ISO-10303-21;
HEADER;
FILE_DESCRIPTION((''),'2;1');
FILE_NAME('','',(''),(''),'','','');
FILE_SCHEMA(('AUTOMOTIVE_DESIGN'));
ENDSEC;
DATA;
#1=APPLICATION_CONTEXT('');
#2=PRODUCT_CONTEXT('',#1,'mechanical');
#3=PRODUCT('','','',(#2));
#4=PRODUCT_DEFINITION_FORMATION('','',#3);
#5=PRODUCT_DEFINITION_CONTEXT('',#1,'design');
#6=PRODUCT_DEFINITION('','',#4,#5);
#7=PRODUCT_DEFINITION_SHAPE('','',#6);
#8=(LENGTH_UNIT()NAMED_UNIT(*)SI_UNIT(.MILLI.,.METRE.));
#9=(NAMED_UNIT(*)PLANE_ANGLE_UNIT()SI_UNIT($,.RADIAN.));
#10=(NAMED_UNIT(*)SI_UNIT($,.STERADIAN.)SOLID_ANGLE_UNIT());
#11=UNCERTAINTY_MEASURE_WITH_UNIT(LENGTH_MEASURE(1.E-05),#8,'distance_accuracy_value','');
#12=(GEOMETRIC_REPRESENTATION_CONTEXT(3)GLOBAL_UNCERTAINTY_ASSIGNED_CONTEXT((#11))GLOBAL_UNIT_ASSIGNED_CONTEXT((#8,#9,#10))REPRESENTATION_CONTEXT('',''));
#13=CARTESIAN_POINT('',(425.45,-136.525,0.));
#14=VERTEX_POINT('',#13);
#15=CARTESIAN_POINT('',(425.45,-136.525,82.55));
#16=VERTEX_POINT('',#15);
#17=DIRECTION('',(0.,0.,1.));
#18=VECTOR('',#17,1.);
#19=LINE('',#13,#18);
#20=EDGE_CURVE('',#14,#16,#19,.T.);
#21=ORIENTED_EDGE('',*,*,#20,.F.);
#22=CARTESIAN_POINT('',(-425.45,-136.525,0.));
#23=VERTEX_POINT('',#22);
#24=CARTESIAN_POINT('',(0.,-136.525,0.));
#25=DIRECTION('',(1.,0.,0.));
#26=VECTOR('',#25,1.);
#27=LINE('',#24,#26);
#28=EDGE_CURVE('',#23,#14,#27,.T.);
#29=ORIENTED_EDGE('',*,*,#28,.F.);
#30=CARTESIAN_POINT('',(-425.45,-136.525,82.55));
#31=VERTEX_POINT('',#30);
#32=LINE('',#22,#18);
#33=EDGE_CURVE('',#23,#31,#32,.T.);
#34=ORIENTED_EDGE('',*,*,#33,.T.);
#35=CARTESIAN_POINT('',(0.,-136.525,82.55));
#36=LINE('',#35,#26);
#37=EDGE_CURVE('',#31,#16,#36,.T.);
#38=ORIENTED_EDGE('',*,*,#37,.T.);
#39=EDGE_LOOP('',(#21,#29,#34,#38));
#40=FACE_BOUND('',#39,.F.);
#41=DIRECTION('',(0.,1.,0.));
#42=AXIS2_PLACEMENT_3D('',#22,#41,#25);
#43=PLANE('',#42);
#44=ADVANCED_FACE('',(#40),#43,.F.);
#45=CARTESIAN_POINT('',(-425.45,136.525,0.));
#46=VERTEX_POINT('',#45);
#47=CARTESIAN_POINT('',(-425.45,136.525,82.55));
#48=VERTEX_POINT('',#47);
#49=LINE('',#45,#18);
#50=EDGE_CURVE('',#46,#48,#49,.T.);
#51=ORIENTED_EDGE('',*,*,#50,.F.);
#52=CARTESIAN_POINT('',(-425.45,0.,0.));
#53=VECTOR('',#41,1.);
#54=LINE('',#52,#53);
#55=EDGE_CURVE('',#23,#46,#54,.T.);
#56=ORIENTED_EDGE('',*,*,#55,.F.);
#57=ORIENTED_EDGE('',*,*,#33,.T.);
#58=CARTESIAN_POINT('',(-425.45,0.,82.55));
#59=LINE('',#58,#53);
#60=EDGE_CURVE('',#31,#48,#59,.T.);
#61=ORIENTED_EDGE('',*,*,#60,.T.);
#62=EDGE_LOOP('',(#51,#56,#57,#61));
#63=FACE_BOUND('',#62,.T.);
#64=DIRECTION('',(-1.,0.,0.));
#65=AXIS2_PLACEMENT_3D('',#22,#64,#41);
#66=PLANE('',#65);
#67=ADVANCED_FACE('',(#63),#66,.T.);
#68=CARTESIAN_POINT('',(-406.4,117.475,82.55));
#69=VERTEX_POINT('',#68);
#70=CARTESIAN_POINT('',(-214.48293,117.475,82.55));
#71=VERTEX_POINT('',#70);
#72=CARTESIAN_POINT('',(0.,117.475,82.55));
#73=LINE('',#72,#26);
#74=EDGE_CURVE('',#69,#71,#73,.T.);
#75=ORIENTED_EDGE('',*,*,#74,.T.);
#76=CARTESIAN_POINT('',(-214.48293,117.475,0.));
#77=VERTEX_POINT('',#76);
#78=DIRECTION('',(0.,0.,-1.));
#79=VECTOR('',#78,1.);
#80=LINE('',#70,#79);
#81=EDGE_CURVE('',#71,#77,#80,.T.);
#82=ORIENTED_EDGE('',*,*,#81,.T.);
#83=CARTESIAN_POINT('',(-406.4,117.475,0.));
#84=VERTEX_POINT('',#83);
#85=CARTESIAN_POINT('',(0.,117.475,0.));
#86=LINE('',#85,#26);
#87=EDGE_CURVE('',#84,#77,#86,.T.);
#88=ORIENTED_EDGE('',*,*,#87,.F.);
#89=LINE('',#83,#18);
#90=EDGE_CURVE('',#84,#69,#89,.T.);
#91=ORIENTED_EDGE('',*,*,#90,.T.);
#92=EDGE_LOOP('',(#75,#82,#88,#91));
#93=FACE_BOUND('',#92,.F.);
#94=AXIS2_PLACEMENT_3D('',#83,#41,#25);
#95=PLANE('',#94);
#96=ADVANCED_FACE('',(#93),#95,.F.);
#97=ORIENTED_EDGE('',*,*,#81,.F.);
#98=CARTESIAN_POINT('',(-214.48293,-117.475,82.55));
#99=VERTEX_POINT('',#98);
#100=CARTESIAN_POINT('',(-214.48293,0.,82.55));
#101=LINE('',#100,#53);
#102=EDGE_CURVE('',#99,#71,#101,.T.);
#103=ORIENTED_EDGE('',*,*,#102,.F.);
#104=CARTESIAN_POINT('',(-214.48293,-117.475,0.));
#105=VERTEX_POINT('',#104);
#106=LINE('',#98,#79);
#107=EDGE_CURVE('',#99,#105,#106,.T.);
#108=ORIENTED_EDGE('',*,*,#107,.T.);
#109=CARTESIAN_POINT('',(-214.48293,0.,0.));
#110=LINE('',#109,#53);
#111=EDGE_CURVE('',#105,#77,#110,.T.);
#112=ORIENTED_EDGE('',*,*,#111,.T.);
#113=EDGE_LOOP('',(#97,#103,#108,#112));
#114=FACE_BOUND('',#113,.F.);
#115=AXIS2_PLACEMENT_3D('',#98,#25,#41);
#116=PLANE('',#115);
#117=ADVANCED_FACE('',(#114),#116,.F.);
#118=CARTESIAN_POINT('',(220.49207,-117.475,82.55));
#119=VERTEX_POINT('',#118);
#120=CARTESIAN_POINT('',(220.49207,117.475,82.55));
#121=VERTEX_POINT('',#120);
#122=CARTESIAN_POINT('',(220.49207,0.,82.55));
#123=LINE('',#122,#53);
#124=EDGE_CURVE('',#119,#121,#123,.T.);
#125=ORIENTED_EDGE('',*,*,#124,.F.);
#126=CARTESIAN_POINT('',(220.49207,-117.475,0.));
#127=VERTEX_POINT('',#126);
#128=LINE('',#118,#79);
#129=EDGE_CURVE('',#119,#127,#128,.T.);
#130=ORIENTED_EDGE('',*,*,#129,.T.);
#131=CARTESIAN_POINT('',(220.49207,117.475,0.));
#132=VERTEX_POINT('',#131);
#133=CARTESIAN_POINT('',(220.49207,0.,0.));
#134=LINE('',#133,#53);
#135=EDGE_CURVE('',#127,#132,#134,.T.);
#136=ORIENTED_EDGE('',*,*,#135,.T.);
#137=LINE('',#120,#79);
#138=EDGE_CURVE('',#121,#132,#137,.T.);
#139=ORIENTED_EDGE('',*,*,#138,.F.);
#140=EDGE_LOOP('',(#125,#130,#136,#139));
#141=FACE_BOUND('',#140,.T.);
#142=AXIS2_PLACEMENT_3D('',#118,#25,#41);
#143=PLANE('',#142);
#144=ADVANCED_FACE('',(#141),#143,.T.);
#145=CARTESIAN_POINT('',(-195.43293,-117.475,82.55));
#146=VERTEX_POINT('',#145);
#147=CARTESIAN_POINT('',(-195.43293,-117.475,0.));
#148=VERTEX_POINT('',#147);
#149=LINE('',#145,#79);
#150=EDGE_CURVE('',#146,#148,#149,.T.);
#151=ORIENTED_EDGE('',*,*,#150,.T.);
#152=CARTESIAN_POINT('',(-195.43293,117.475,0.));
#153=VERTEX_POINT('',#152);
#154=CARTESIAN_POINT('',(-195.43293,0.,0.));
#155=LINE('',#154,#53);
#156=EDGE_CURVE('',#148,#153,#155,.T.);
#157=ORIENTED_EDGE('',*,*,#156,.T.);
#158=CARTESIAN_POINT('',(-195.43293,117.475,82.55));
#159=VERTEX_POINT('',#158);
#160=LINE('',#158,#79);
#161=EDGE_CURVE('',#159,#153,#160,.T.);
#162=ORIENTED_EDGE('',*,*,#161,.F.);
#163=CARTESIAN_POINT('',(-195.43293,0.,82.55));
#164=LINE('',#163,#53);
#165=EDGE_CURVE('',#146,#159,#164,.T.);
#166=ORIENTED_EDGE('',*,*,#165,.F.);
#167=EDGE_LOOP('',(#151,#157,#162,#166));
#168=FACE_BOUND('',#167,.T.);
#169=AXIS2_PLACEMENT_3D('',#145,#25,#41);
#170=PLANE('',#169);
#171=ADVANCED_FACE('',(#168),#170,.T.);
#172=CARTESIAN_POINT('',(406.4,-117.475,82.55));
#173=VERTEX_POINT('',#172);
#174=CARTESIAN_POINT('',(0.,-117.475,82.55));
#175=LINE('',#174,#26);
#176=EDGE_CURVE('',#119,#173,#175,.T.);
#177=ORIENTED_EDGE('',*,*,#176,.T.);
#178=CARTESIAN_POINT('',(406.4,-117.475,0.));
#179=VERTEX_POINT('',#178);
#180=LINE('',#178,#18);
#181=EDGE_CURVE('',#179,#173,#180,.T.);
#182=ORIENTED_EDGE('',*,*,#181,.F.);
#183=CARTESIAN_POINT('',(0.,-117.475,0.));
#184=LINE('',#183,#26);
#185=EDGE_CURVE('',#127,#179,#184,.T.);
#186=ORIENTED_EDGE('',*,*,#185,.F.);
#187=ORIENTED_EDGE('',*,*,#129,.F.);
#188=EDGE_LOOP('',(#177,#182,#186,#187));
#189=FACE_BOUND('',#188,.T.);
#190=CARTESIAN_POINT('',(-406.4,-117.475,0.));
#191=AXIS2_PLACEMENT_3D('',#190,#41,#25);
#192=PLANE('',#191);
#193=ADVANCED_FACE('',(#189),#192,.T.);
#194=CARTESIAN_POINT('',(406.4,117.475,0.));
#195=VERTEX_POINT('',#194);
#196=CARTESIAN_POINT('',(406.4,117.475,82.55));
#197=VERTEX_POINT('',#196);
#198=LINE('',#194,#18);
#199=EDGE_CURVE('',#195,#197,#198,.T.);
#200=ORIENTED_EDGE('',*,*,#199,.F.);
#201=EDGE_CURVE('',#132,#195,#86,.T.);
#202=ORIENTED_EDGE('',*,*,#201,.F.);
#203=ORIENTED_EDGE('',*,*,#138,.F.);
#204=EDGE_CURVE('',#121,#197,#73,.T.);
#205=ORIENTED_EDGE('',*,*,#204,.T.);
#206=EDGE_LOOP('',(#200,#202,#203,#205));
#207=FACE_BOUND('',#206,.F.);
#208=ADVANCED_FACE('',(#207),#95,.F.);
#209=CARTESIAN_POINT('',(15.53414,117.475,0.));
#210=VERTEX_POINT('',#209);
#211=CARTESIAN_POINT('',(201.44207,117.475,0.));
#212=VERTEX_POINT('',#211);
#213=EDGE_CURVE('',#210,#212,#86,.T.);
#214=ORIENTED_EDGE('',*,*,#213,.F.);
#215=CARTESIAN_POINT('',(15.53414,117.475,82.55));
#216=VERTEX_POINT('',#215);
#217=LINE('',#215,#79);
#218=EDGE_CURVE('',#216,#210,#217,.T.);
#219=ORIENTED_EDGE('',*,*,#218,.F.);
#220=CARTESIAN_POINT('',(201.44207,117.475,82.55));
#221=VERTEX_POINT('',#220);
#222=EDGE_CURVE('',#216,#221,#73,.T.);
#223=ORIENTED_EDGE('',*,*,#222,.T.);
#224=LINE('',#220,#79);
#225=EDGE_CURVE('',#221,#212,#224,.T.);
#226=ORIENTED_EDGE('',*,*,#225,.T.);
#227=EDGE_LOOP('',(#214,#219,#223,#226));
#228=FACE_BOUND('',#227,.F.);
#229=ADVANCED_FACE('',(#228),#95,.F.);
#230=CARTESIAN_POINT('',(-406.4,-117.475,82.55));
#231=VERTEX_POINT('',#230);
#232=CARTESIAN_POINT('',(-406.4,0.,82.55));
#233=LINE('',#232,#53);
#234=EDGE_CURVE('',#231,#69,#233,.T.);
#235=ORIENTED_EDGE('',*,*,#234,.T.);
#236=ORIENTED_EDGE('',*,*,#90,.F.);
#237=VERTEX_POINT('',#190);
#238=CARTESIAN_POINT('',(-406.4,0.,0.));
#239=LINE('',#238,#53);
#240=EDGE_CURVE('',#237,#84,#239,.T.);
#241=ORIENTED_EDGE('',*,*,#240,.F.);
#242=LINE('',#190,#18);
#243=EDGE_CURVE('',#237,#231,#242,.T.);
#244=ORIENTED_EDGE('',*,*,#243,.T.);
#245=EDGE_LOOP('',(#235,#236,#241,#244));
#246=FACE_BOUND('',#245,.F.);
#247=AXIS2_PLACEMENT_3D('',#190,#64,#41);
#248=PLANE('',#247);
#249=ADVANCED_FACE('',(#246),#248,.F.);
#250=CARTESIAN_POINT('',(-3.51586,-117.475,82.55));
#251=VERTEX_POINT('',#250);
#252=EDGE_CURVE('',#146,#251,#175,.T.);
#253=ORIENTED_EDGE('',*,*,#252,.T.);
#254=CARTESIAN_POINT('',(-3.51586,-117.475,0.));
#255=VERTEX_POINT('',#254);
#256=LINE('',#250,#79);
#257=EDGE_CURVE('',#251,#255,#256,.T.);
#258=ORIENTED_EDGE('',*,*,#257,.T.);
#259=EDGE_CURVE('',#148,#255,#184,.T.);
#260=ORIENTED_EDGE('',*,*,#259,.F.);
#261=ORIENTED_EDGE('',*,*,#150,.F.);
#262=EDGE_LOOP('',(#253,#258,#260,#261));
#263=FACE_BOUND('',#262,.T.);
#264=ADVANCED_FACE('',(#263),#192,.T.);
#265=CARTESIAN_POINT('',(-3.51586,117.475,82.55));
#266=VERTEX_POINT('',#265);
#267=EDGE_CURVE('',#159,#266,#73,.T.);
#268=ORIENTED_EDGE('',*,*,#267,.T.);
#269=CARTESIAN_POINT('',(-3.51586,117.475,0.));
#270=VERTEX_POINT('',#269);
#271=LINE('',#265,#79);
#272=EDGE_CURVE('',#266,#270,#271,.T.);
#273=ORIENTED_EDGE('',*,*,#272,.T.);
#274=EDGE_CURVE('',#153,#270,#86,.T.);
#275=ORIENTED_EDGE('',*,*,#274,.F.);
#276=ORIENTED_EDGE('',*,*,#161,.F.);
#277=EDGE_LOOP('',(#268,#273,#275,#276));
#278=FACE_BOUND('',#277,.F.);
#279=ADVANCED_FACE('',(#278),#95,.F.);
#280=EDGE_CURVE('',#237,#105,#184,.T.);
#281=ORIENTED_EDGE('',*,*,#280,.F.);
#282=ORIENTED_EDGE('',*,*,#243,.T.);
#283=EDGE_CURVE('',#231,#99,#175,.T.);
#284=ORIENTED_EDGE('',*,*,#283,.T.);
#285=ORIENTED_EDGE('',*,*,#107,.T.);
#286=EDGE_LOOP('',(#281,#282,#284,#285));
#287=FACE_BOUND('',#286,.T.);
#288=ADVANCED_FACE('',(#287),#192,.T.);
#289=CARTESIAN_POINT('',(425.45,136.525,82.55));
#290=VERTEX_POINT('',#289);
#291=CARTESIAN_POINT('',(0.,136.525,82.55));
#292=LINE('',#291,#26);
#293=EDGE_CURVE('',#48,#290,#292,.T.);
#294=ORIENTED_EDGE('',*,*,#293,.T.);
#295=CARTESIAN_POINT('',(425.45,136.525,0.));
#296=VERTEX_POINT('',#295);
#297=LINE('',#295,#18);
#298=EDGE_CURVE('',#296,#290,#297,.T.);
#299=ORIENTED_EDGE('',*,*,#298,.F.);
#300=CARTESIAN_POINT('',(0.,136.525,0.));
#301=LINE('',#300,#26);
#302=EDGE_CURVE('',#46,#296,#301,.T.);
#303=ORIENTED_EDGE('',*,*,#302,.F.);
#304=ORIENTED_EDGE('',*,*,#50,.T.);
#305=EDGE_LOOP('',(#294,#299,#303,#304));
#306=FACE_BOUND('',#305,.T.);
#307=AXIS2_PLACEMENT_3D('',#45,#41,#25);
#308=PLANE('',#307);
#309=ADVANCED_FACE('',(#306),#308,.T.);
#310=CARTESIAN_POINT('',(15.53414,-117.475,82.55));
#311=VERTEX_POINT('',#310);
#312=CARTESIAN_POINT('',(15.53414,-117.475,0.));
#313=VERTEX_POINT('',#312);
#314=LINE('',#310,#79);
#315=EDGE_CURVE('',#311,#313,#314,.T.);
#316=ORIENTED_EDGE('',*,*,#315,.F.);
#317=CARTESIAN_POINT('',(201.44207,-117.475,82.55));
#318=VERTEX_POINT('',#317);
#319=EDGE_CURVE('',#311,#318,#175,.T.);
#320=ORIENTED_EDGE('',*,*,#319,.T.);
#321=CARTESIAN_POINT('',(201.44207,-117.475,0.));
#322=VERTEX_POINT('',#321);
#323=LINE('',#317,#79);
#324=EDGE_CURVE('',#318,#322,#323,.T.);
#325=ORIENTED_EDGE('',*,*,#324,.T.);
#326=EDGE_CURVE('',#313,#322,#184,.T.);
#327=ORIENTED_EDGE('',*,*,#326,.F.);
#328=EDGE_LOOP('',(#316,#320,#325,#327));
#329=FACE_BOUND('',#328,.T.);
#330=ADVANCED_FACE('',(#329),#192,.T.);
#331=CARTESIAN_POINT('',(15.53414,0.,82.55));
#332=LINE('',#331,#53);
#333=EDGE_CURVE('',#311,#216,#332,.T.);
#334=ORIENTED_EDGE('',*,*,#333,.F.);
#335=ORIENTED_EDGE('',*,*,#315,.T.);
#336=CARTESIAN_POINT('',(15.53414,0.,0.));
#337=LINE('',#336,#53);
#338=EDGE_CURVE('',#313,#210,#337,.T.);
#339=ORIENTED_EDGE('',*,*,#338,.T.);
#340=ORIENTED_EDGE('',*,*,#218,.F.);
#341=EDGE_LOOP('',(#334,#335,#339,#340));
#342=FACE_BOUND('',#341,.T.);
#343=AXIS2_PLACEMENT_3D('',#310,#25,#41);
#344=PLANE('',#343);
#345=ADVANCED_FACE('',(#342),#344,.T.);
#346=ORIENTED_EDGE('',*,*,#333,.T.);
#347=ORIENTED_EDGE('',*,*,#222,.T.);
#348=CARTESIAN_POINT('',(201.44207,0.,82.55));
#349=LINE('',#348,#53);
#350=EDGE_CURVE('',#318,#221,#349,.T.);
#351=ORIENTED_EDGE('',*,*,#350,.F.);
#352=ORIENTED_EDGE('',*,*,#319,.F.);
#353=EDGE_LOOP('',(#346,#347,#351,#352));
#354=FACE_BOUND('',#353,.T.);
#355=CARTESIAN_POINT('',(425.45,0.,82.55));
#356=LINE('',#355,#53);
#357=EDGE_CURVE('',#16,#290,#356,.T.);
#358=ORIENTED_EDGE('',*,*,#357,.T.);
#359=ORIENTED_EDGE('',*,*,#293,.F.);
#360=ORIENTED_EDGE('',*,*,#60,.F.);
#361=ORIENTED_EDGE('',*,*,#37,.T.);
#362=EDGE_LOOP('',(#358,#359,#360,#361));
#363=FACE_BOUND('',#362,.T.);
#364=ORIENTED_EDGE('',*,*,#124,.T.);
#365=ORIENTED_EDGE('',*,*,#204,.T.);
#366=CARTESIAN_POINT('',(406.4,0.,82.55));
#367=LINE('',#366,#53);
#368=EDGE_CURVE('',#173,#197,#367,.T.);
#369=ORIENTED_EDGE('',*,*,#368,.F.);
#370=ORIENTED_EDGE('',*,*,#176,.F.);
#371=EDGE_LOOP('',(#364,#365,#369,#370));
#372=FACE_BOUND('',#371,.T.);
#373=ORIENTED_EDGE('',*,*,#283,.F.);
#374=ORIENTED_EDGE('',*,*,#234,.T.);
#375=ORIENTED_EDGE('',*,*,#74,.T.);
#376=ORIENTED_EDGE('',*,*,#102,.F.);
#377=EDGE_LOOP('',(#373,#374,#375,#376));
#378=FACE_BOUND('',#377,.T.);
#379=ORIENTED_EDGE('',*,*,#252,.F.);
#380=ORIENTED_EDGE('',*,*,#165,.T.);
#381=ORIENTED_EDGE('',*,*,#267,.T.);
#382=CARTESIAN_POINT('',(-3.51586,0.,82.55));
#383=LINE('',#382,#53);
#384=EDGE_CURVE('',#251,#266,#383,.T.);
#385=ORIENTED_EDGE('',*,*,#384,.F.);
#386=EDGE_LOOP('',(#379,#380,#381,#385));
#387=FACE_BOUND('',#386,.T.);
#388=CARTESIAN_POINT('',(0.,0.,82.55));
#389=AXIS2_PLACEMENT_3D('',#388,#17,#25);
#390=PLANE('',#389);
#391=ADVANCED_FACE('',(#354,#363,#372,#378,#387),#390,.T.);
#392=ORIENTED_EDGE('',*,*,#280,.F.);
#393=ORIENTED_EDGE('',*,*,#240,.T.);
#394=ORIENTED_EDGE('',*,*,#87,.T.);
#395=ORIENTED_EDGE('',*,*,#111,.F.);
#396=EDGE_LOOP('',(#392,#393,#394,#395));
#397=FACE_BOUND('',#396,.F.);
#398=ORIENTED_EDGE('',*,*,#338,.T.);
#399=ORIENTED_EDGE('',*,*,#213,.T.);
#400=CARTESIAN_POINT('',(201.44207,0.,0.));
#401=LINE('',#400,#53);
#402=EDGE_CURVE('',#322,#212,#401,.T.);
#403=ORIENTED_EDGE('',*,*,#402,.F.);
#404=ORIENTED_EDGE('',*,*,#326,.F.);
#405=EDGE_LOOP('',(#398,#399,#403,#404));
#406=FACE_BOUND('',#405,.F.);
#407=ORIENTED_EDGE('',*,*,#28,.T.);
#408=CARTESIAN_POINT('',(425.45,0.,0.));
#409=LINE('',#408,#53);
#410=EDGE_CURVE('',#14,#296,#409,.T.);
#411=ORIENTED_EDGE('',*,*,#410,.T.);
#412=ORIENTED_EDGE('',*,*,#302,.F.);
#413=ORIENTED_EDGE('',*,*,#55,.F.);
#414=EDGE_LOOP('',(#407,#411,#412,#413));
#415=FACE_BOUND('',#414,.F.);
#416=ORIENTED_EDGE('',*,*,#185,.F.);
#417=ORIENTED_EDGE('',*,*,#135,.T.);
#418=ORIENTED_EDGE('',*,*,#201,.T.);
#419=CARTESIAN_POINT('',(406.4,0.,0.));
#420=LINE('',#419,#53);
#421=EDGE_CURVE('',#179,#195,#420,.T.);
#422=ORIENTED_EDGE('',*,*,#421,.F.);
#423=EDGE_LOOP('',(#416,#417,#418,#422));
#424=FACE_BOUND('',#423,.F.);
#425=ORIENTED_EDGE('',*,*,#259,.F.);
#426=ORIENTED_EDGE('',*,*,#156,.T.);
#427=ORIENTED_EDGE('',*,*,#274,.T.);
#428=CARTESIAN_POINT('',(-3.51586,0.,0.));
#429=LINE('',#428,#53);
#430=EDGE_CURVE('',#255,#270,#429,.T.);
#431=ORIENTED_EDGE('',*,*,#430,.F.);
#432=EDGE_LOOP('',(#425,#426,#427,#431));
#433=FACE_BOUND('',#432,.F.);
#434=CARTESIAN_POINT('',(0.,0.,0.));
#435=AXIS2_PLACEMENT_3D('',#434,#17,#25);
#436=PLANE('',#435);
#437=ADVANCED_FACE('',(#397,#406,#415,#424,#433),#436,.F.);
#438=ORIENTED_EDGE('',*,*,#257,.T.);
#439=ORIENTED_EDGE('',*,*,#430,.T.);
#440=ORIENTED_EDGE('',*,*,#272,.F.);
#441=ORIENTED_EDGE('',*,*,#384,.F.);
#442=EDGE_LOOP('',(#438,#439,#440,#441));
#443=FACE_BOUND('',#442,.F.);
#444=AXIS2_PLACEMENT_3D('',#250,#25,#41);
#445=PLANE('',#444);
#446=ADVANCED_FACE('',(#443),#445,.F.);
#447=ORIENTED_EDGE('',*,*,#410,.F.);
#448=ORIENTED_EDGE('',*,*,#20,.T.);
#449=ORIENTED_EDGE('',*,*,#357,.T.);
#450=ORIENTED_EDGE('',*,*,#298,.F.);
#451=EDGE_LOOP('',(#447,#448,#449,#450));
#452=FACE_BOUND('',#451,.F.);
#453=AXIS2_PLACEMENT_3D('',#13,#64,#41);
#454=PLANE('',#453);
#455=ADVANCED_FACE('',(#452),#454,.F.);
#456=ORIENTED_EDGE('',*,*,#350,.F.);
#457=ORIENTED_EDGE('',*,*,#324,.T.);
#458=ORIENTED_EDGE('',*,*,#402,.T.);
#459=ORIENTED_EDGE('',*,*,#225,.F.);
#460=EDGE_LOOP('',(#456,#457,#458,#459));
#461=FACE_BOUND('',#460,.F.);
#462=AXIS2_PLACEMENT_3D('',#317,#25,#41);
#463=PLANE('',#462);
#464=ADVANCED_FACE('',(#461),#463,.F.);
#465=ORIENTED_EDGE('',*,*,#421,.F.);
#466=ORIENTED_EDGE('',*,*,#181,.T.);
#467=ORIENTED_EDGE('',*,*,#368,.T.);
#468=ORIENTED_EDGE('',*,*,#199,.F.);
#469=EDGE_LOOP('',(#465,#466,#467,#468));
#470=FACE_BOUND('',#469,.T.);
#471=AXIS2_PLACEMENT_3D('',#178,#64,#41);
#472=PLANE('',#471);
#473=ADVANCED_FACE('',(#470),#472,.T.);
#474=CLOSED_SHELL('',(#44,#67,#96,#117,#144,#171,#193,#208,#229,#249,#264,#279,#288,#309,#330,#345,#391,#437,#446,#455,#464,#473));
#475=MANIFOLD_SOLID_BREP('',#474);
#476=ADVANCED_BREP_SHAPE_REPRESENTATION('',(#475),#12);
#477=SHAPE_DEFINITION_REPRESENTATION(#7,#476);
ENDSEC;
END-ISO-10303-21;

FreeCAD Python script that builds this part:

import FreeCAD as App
import Part
import Sketcher

V = App.Vector
Q = App.Units.Quantity


def add_polygon(sketch, points):
    """Adds a closed chain of lines whose ends are joined by coincident constraints."""
    first, n = sketch.GeometryCount, len(points)
    for a, b in zip(points, points[1:] + points[:1]):
        sketch.addGeometry(Part.LineSegment(App.Vector(*a, 0), App.Vector(*b, 0)), False)
    for i in range(n):
        sketch.addConstraint(Sketcher.Constraint("Coincident", first + i, 2, first + (i + 1) % n, 1))

doc = App.newDocument("Part")
body = doc.addObject("PartDesign::Body", "Body")

# Sketch on XY plane
sketch1 = doc.addObject("Sketcher::SketchObject", "Sketch")
body.addObject(sketch1)
sketch1.AttachmentSupport = (doc.XY_Plane, [""])
sketch1.MapMode = "FlatFace"
add_polygon(sketch1, [(-425, 137), (-425, -137), (425, -137), (425, 137)])  # lines 0-3
add_polygon(sketch1, [(406, -117), (-406, -117), (-406, 117), (406, 117)])  # lines 4-7
sketch1.addConstraint([
    Sketcher.Constraint("Vertical", 0),
    Sketcher.Constraint("Horizontal", 1),
    Sketcher.Constraint("Vertical", 2),
    Sketcher.Constraint("Horizontal", 3),
    Sketcher.Constraint("Horizontal", 4),
    Sketcher.Constraint("Vertical", 5),
    Sketcher.Constraint("Horizontal", 6),
    Sketcher.Constraint("Vertical", 7),
    Sketcher.Constraint("Symmetric", 0, 2, 2, 2, -1, 1),
    Sketcher.Constraint("Symmetric", 4, 2, 6, 2, -1, 1),
    Sketcher.Constraint("DistanceX", 4, 2, 4, 1, Q("32 in")),
    Sketcher.Constraint("DistanceX", 1, 1, 1, 2, Q("33.5 in")),
    Sketcher.Constraint("DistanceY", 4, 2, 3, 2, Q("10 in")),
    Sketcher.Constraint("DistanceY", 0, 2, 0, 1, Q("10.75 in")),
])
pad1 = doc.addObject("PartDesign::Pad", "Pad")
body.addObject(pad1)
pad1.Profile = sketch1
pad1.Length = Q("3.25 in")

# Sketch on XY plane
sketch2 = doc.addObject("Sketcher::SketchObject", "Sketch001")
body.addObject(sketch2)
sketch2.AttachmentSupport = (doc.XY_Plane, [""])
sketch2.MapMode = "FlatFace"
sketch2.AttachmentOffset = App.Placement(V(0, 0, 3.25 * 25.4), App.Rotation())
add_polygon(sketch2, [(-4, 117), (-4, -117), (16, -117), (16, 117)])  # lines 0-3
sketch2.addConstraint([
    Sketcher.Constraint("Vertical", 0),
    Sketcher.Constraint("Horizontal", 1),
    Sketcher.Constraint("Vertical", 2),
    Sketcher.Constraint("Horizontal", 3),
    Sketcher.Constraint("DistanceX", 1, 1, 1, 2, Q("0.75 in")),
    Sketcher.Constraint("DistanceY", 0, 2, 0, 1, Q("9.25 in")),
    Sketcher.Constraint("DistanceY", 0, 2, -1, 1, Q("4.625 in")),
    Sketcher.Constraint("DistanceX", 0, 2, -1, 1, 3.51586),
])
pad2 = doc.addObject("PartDesign::Pad", "Pad001")
body.addObject(pad2)
pad2.Profile = sketch2
pad2.Length = Q("3.25 in")
pad2.Reversed = True

# Sketch on XY plane
sketch3 = doc.addObject("Sketcher::SketchObject", "Sketch002")
body.addObject(sketch3)
sketch3.AttachmentSupport = (doc.XY_Plane, [""])
sketch3.MapMode = "FlatFace"
sketch3.AttachmentOffset = App.Placement(V(0, 0, 3.25 * 25.4), App.Rotation())
add_polygon(sketch3, [(-214, 117), (-214, -117), (-195, -117), (-195, 117)])  # lines 0-3
sketch3.addConstraint([
    Sketcher.Constraint("Vertical", 0),
    Sketcher.Constraint("Horizontal", 1),
    Sketcher.Constraint("Vertical", 2),
    Sketcher.Constraint("Horizontal", 3),
    Sketcher.Constraint("DistanceX", 1, 1, 1, 2, Q("0.75 in")),
    Sketcher.Constraint("DistanceY", 0, 2, 0, 1, Q("9.25 in")),
    Sketcher.Constraint("DistanceY", 0, 2, -1, 1, Q("4.625 in")),
    Sketcher.Constraint("DistanceX", 0, 2, -1, 1, 214.48293),
])
pad3 = doc.addObject("PartDesign::Pad", "Pad002")
body.addObject(pad3)
pad3.Profile = sketch3
pad3.Length = Q("3.25 in")
pad3.Reversed = True

# Sketch on XY plane
sketch4 = doc.addObject("Sketcher::SketchObject", "Sketch003")
body.addObject(sketch4)
sketch4.AttachmentSupport = (doc.XY_Plane, [""])
sketch4.MapMode = "FlatFace"
sketch4.AttachmentOffset = App.Placement(V(0, 0, 3.25 * 25.4), App.Rotation())
add_polygon(sketch4, [(201, 117), (201, -117), (220, -117), (220, 117)])  # lines 0-3
sketch4.addConstraint([
    Sketcher.Constraint("Vertical", 0),
    Sketcher.Constraint("Horizontal", 1),
    Sketcher.Constraint("Vertical", 2),
    Sketcher.Constraint("Horizontal", 3),
    Sketcher.Constraint("DistanceX", 1, 1, 1, 2, Q("0.75 in")),
    Sketcher.Constraint("DistanceY", 0, 2, 0, 1, Q("9.25 in")),
    Sketcher.Constraint("DistanceY", 0, 2, -1, 1, Q("4.625 in")),
    Sketcher.Constraint("DistanceX", -1, 1, 0, 2, 201.44207),
])
pad4 = doc.addObject("PartDesign::Pad", "Pad003")
body.addObject(pad4)
pad4.Profile = sketch4
pad4.Length = Q("3.25 in")
pad4.Reversed = True

doc.recompute()
